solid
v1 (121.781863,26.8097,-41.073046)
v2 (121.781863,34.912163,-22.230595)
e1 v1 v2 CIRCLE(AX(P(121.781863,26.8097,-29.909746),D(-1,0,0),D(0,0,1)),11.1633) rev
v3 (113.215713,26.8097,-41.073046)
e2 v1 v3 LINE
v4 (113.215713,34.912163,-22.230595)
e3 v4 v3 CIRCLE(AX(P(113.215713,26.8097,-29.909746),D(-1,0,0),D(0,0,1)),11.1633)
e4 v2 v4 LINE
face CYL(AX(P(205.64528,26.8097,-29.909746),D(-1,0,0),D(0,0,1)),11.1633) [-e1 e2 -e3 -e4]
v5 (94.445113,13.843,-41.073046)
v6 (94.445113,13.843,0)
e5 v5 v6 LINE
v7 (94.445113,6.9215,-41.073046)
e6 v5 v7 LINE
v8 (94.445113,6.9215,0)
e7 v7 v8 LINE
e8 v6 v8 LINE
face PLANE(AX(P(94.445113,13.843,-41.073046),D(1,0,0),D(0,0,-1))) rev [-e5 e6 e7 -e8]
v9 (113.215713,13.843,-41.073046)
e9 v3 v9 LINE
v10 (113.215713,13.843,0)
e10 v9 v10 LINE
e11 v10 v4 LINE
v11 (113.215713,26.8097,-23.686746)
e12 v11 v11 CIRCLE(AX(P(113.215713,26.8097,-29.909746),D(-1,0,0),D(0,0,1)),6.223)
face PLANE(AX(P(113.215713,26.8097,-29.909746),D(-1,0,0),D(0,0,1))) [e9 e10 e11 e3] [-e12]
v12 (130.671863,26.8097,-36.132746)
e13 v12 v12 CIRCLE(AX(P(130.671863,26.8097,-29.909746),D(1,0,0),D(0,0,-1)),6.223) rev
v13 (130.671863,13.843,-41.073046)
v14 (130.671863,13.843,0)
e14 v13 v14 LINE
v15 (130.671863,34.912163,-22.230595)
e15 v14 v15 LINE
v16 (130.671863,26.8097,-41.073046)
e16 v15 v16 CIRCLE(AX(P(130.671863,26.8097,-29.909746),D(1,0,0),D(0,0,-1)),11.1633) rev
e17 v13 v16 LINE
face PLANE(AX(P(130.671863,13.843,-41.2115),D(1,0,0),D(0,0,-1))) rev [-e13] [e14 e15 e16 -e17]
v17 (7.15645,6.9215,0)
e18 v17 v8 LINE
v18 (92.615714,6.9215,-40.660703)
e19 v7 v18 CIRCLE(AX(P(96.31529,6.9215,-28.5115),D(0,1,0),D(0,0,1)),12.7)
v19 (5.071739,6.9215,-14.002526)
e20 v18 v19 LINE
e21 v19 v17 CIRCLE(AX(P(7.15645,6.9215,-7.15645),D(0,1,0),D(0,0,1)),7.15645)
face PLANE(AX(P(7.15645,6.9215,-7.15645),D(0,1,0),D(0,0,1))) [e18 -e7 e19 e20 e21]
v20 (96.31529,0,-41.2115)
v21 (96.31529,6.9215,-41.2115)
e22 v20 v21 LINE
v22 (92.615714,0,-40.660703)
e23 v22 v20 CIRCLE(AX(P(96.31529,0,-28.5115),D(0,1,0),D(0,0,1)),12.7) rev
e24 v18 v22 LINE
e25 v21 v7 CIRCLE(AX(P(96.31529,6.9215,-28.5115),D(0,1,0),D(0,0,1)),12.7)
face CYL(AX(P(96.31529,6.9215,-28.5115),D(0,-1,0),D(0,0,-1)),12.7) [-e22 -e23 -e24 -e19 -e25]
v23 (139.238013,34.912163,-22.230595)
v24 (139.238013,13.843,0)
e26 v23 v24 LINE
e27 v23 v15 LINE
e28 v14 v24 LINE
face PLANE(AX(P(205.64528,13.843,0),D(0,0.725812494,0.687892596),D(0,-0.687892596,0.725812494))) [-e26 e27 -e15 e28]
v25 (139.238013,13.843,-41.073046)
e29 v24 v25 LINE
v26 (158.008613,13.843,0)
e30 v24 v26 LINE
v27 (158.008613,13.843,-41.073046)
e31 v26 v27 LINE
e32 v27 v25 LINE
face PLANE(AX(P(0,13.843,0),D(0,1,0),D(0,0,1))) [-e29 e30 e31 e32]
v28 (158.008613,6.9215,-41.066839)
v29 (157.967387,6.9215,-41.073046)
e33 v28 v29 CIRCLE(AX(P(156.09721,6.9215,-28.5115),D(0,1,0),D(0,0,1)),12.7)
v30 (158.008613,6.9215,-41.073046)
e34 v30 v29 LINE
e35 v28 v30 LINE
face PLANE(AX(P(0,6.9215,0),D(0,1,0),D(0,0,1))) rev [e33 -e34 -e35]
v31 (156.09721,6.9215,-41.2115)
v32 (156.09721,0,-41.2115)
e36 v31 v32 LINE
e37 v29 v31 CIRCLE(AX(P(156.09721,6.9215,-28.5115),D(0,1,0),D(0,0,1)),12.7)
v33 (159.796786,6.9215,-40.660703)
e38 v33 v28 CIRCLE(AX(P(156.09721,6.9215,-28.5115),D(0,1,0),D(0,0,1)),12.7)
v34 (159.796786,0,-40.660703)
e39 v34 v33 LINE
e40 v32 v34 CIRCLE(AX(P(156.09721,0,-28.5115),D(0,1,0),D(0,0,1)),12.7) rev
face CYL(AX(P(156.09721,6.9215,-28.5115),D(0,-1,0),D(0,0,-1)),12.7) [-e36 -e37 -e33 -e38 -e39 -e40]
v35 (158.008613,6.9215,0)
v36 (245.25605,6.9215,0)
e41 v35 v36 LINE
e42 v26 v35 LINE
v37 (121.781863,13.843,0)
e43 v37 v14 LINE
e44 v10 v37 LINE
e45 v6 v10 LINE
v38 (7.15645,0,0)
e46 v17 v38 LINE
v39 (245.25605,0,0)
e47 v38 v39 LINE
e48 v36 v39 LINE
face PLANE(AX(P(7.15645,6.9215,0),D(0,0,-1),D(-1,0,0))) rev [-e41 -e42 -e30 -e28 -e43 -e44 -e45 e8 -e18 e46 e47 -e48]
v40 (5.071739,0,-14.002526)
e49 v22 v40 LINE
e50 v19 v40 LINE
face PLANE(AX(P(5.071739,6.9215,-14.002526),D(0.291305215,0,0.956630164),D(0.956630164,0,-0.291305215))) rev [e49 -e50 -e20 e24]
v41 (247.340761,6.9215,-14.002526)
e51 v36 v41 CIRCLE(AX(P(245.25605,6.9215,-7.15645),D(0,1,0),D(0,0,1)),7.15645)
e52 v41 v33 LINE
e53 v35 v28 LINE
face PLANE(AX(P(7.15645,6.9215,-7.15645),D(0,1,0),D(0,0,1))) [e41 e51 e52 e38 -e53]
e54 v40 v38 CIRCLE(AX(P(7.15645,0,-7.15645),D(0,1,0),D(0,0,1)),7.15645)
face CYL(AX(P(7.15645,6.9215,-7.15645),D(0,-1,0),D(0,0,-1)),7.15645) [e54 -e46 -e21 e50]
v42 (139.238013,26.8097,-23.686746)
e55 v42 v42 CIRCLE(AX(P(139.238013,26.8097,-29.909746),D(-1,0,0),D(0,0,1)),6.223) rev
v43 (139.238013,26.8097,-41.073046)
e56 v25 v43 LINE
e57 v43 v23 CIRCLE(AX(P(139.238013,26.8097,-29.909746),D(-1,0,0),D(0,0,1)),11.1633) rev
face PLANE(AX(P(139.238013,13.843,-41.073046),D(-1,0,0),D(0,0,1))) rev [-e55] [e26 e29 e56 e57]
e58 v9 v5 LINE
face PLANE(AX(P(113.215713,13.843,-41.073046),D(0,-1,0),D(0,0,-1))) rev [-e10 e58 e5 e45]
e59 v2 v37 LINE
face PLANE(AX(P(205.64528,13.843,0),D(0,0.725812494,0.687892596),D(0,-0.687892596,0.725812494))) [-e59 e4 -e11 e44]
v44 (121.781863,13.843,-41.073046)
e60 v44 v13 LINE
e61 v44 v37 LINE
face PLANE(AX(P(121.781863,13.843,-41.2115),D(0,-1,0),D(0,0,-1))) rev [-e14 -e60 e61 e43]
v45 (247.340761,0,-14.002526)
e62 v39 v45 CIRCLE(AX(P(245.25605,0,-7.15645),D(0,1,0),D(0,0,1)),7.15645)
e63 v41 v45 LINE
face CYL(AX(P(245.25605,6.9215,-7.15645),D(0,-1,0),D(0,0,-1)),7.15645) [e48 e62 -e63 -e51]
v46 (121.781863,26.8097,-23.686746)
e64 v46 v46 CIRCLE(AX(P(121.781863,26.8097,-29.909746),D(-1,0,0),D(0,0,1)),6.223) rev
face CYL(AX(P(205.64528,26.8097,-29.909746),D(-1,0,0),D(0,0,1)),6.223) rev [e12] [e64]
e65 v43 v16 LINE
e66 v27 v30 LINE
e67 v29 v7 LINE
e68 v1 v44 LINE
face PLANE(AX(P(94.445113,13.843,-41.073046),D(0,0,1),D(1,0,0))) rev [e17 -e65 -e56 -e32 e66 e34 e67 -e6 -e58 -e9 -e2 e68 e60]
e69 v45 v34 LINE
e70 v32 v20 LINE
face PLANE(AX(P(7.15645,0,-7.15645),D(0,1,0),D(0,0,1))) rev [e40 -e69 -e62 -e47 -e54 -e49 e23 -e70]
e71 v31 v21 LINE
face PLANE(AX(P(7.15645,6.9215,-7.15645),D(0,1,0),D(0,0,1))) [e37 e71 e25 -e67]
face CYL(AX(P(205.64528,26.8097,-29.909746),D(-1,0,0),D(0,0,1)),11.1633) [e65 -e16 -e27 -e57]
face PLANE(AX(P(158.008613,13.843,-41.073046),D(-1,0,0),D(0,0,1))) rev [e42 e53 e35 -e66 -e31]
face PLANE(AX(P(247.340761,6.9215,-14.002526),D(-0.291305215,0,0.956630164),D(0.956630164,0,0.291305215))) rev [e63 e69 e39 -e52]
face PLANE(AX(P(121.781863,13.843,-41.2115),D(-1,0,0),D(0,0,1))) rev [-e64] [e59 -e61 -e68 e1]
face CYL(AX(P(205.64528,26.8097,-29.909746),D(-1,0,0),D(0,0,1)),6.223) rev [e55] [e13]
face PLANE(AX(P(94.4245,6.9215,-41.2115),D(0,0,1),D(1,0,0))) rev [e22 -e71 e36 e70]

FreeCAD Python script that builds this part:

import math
import FreeCAD as App
import Part
import Sketcher

V = App.Vector
Q = App.Units.Quantity


def edges_at(feature, points):
    """Names of the edges that pass closest to the given points."""
    edges = feature.Shape.Edges
    near = lambda p: min(range(len(edges)), key=lambda i: edges[i].distToShape(Part.Vertex(*p))[0])
    return sorted({f"Edge{near(p) + 1}" for p in points})

doc = App.newDocument("Part")
params = doc.addObject("Spreadsheet::Sheet", "Params")
for row, (alias, value) in enumerate([
    ("sketch1_width", "9.374 in"),
    ("pad1_length", "0.2725 in"),
    ("fillet_radius", "0.5 in"),
    ("pad2_length", "0.2725 in"),
    ("sketch3_diameter", "0.49 in"),
    ("pad3_length", "1.7635 in"),
    ("sketch4_diameter", "0.49 in"),
    ("pocket1_length", "0.739 in"),
    ("sketch5_width", "0.35 in"),
    ("sketch5_height", "0.95 in"),
], start=1):
    params.set(f"A{row}", alias)
    params.set(f"B{row}", "=" + value)
    params.setAlias(f"B{row}", alias)

body = doc.addObject("PartDesign::Body", "Body")

# Sketch on XZ plane
sketch1 = body.newObject("Sketcher::SketchObject", "Sketch")
sketch1.AttachmentSupport = (doc.getObject("XZ_Plane"), [""])
sketch1.MapMode = "FlatFace"
sketch1.addGeometry(Part.LineSegment(V(94, -41, 0), V(5, -14, 0)), False)
sketch1.addGeometry(Part.ArcOfCircle(Part.Circle(V(7, -7, 0), V(0, 0, 1), 7), math.radians(90), math.radians(253)), False)
sketch1.addGeometry(Part.LineSegment(V(7, 0, 0), V(245, 0, 0)), False)
sketch1.addGeometry(Part.ArcOfCircle(Part.Circle(V(245, -7, 0), V(0, 0, 1), 7), math.radians(-73), math.radians(90)), False)
sketch1.addGeometry(Part.LineSegment(V(247, -14, 0), V(158, -41, 0)), False)
sketch1.addGeometry(Part.LineSegment(V(158, -41, 0), V(94, -41, 0)), False)
sketch1.addConstraint(Sketcher.Constraint("Tangent", 0, 2, 1, 2))
sketch1.addConstraint(Sketcher.Constraint("Tangent", 1, 1, 2, 1))
sketch1.addConstraint(Sketcher.Constraint("Tangent", 2, 2, 3, 2))
sketch1.addConstraint(Sketcher.Constraint("Tangent", 3, 1, 4, 1))
sketch1.addConstraint(Sketcher.Constraint("Coincident", 4, 2, 5, 1))
sketch1.addConstraint(Sketcher.Constraint("Coincident", 5, 2, 0, 1))
sketch1.addConstraint(Sketcher.Constraint("Horizontal", 2))
sketch1.addConstraint(Sketcher.Constraint("Horizontal", 5))
sketch1.addConstraint(Sketcher.Constraint("Equal", 1, 3))
sketch1.addConstraint(Sketcher.Constraint("PointOnObject", 1, 1, -1))
sketch1.addConstraint(Sketcher.Constraint("Horizontal", 0, 2, 3, 1))
sketch1.addConstraint(Sketcher.Constraint("DistanceX", 2, 1, 2, 2, Q("9.374 in")))
sketch1.addConstraint(Sketcher.Constraint("DistanceX", -1, 1, 4, 2, Q("6.22 in")))
sketch1.addConstraint(Sketcher.Constraint("DistanceX", 5, 2, 5, 1, Q("2.5025 in")))
sketch1.addConstraint(Sketcher.Constraint("Radius", 1, Q("7.15645 mm")))
sketch1.addConstraint(Sketcher.Constraint("DistanceY", 4, 2, -1, 1, Q("1.6225 in")))
sketch1.setExpression("Constraints[11]", "Params.sketch1_width")
pad1 = body.newObject("PartDesign::Pad", "Pad")
pad1.Profile = sketch1
pad1.setExpression("Length", "Params.pad1_length")
pad1.Reversed = True
doc.recompute()

fillet = body.newObject("PartDesign::Fillet", "Fillet")
fillet.Base = (pad1, edges_at(pad1, [(94.424, 3.461, -41.212), (157.988, 3.461, -41.212)]))
fillet.setExpression("Radius", "Params.fillet_radius")

# Sketch on XZ plane
sketch2 = body.newObject("Sketcher::SketchObject", "Sketch001")
sketch2.AttachmentSupport = (doc.getObject("XZ_Plane"), [""])
sketch2.MapMode = "FlatFace"
sketch2.AttachmentOffset = App.Placement(V(0, 0, -0.2725 * 25.4), App.Rotation())
sketch2.addGeometry(Part.LineSegment(V(94, -41, 0), V(94, 0, 0)), False)
sketch2.addGeometry(Part.LineSegment(V(94, 0, 0), V(158, 0, 0)), False)
sketch2.addGeometry(Part.LineSegment(V(158, 0, 0), V(158, -41, 0)), False)
sketch2.addGeometry(Part.LineSegment(V(158, -41, 0), V(94, -41, 0)), False)
sketch2.addConstraint(Sketcher.Constraint("Coincident", 0, 2, 1, 1))
sketch2.addConstraint(Sketcher.Constraint("Coincident", 1, 2, 2, 1))
sketch2.addConstraint(Sketcher.Constraint("Coincident", 2, 2, 3, 1))
sketch2.addConstraint(Sketcher.Constraint("Coincident", 3, 2, 0, 1))
sketch2.addConstraint(Sketcher.Constraint("Vertical", 0))
sketch2.addConstraint(Sketcher.Constraint("Horizontal", 1))
sketch2.addConstraint(Sketcher.Constraint("Vertical", 2))
sketch2.addConstraint(Sketcher.Constraint("Horizontal", 3))
sketch2.addConstraint(Sketcher.Constraint("PointOnObject", 0, 2, -1))
sketch2.addConstraint(Sketcher.Constraint("DistanceX", 1, 1, 1, 2, Q("2.5025 in")))
sketch2.addConstraint(Sketcher.Constraint("DistanceY", 0, 1, 0, 2, Q("41.073046 mm")))
sketch2.addConstraint(Sketcher.Constraint("DistanceX", -1, 1, 0, 2, Q("94.445113 mm")))
pad2 = body.newObject("PartDesign::Pad", "Pad001")
pad2.Profile = sketch2
pad2.setExpression("Length", "Params.pad2_length")
pad2.Reversed = True

# Sketch on YZ plane
sketch3 = body.newObject("Sketcher::SketchObject", "Sketch002")
sketch3.AttachmentSupport = (doc.getObject("YZ_Plane"), [""])
sketch3.MapMode = "FlatFace"
sketch3.AttachmentOffset = App.Placement(V(0, 0, 94.445113), App.Rotation())
sketch3.addGeometry(Part.LineSegment(V(27, -41, 0), V(14, -41, 0)), False)
sketch3.addGeometry(Part.LineSegment(V(14, -41, 0), V(14, 0, 0)), False)
sketch3.addGeometry(Part.LineSegment(V(14, 0, 0), V(35, -22, 0)), False)
sketch3.addGeometry(Part.ArcOfCircle(Part.Circle(V(27, -30, 0), V(0, 0, 1), 11), math.radians(-90), math.radians(43)), False)
sketch3.addGeometry(Part.Circle(V(27, -30, 0), V(0, 0, 1), 6), False)
sketch3.addConstraint(Sketcher.Constraint("Coincident", 0, 2, 1, 1))
sketch3.addConstraint(Sketcher.Constraint("Coincident", 1, 2, 2, 1))
sketch3.addConstraint(Sketcher.Constraint("Tangent", 2, 2, 3, 2))
sketch3.addConstraint(Sketcher.Constraint("Tangent", 3, 1, 0, 1))
sketch3.addConstraint(Sketcher.Constraint("Horizontal", 0))
sketch3.addConstraint(Sketcher.Constraint("Vertical", 1))
sketch3.addConstraint(Sketcher.Constraint("Coincident", 4, 3, 3, 3))
sketch3.addConstraint(Sketcher.Constraint("PointOnObject", 1, 2, -1))
sketch3.addConstraint(Sketcher.Constraint("Diameter", 4, Q("0.49 in")))
sketch3.addConstraint(Sketcher.Constraint("Radius", 3, Q("0.4395 in")))
sketch3.addConstraint(Sketcher.Constraint("DistanceX", 0, 2, 0, 1, Q("0.5105 in")))
sketch3.addConstraint(Sketcher.Constraint("DistanceX", -1, 1, 0, 2, Q("0.545 in")))
sketch3.addConstraint(Sketcher.Constraint("DistanceY", 1, 1, 1, 2, Q("41.073046 mm")))
sketch3.setExpression("Constraints[8]", "Params.sketch3_diameter")
pad3 = body.newObject("PartDesign::Pad", "Pad002")
pad3.Profile = sketch3
pad3.setExpression("Length", "Params.pad3_length")

# Sketch on YZ plane
sketch4 = body.newObject("Sketcher::SketchObject", "Sketch003")
sketch4.AttachmentSupport = (doc.getObject("YZ_Plane"), [""])
sketch4.MapMode = "FlatFace"
sketch4.AttachmentOffset = App.Placement(V(0, 0, 94.445113), App.Rotation())
sketch4.addGeometry(Part.LineSegment(V(27, -41, 0), V(14, -41, 0)), False)
sketch4.addGeometry(Part.LineSegment(V(14, -41, 0), V(14, 0, 0)), False)
sketch4.addGeometry(Part.LineSegment(V(14, 0, 0), V(35, -22, 0)), False)
sketch4.addGeometry(Part.ArcOfCircle(Part.Circle(V(27, -30, 0), V(0, 0, 1), 11), math.radians(-90), math.radians(43)), False)
sketch4.addGeometry(Part.Circle(V(27, -30, 0), V(0, 0, 1), 6), False)
sketch4.addConstraint(Sketcher.Constraint("Coincident", 0, 2, 1, 1))
sketch4.addConstraint(Sketcher.Constraint("Coincident", 1, 2, 2, 1))
sketch4.addConstraint(Sketcher.Constraint("Tangent", 2, 2, 3, 2))
sketch4.addConstraint(Sketcher.Constraint("Tangent", 3, 1, 0, 1))
sketch4.addConstraint(Sketcher.Constraint("Horizontal", 0))
sketch4.addConstraint(Sketcher.Constraint("Vertical", 1))
sketch4.addConstraint(Sketcher.Constraint("Coincident", 4, 3, 3, 3))
sketch4.addConstraint(Sketcher.Constraint("PointOnObject", 1, 2, -1))
sketch4.addConstraint(Sketcher.Constraint("Diameter", 4, Q("0.49 in")))
sketch4.addConstraint(Sketcher.Constraint("Radius", 3, Q("0.4395 in")))
sketch4.addConstraint(Sketcher.Constraint("DistanceX", 0, 2, 0, 1, Q("0.5105 in")))
sketch4.addConstraint(Sketcher.Constraint("DistanceX", -1, 1, 0, 2, Q("0.545 in")))
sketch4.addConstraint(Sketcher.Constraint("DistanceY", 1, 1, 1, 2, Q("41.073046 mm")))
sketch4.setExpression("Constraints[8]", "Params.sketch4_diameter")
pocket1 = body.newObject("PartDesign::Pocket", "Pocket")
pocket1.Profile = sketch4
pocket1.setExpression("Length", "Params.pocket1_length")
pocket1.Reversed = True

# Sketch on XY plane
sketch5 = body.newObject("Sketcher::SketchObject", "Sketch004")
sketch5.AttachmentSupport = (doc.getObject("XY_Plane"), [""])
sketch5.MapMode = "FlatFace"
sketch5.addGeometry(Part.LineSegment(V(122, 38, 0), V(122, 14, 0)), False)
sketch5.addGeometry(Part.LineSegment(V(122, 14, 0), V(131, 14, 0)), False)
sketch5.addGeometry(Part.LineSegment(V(131, 14, 0), V(131, 38, 0)), False)
sketch5.addGeometry(Part.LineSegment(V(131, 38, 0), V(122, 38, 0)), False)
sketch5.addConstraint(Sketcher.Constraint("Coincident", 0, 2, 1, 1))
sketch5.addConstraint(Sketcher.Constraint("Coincident", 1, 2, 2, 1))
sketch5.addConstraint(Sketcher.Constraint("Coincident", 2, 2, 3, 1))
sketch5.addConstraint(Sketcher.Constraint("Coincident", 3, 2, 0, 1))
sketch5.addConstraint(Sketcher.Constraint("Vertical", 0))
sketch5.addConstraint(Sketcher.Constraint("Horizontal", 1))
sketch5.addConstraint(Sketcher.Constraint("Vertical", 2))
sketch5.addConstraint(Sketcher.Constraint("Horizontal", 3))
sketch5.addConstraint(Sketcher.Constraint("DistanceX", 1, 1, 1, 2, Q("0.35 in")))
sketch5.addConstraint(Sketcher.Constraint("DistanceY", 0, 2, 0, 1, Q("0.95 in")))
sketch5.addConstraint(Sketcher.Constraint("DistanceY", -1, 1, 0, 2, Q("0.545 in")))
sketch5.addConstraint(Sketcher.Constraint("DistanceX", -1, 1, 0, 2, Q("121.781863 mm")))
sketch5.setExpression("Constraints[8]", "Params.sketch5_width")
sketch5.setExpression("Constraints[9]", "Params.sketch5_height")
pocket2 = body.newObject("PartDesign::Pocket", "Pocket001")
pocket2.Profile = sketch5
pocket2.Type = "ThroughAll"

doc.recompute()
